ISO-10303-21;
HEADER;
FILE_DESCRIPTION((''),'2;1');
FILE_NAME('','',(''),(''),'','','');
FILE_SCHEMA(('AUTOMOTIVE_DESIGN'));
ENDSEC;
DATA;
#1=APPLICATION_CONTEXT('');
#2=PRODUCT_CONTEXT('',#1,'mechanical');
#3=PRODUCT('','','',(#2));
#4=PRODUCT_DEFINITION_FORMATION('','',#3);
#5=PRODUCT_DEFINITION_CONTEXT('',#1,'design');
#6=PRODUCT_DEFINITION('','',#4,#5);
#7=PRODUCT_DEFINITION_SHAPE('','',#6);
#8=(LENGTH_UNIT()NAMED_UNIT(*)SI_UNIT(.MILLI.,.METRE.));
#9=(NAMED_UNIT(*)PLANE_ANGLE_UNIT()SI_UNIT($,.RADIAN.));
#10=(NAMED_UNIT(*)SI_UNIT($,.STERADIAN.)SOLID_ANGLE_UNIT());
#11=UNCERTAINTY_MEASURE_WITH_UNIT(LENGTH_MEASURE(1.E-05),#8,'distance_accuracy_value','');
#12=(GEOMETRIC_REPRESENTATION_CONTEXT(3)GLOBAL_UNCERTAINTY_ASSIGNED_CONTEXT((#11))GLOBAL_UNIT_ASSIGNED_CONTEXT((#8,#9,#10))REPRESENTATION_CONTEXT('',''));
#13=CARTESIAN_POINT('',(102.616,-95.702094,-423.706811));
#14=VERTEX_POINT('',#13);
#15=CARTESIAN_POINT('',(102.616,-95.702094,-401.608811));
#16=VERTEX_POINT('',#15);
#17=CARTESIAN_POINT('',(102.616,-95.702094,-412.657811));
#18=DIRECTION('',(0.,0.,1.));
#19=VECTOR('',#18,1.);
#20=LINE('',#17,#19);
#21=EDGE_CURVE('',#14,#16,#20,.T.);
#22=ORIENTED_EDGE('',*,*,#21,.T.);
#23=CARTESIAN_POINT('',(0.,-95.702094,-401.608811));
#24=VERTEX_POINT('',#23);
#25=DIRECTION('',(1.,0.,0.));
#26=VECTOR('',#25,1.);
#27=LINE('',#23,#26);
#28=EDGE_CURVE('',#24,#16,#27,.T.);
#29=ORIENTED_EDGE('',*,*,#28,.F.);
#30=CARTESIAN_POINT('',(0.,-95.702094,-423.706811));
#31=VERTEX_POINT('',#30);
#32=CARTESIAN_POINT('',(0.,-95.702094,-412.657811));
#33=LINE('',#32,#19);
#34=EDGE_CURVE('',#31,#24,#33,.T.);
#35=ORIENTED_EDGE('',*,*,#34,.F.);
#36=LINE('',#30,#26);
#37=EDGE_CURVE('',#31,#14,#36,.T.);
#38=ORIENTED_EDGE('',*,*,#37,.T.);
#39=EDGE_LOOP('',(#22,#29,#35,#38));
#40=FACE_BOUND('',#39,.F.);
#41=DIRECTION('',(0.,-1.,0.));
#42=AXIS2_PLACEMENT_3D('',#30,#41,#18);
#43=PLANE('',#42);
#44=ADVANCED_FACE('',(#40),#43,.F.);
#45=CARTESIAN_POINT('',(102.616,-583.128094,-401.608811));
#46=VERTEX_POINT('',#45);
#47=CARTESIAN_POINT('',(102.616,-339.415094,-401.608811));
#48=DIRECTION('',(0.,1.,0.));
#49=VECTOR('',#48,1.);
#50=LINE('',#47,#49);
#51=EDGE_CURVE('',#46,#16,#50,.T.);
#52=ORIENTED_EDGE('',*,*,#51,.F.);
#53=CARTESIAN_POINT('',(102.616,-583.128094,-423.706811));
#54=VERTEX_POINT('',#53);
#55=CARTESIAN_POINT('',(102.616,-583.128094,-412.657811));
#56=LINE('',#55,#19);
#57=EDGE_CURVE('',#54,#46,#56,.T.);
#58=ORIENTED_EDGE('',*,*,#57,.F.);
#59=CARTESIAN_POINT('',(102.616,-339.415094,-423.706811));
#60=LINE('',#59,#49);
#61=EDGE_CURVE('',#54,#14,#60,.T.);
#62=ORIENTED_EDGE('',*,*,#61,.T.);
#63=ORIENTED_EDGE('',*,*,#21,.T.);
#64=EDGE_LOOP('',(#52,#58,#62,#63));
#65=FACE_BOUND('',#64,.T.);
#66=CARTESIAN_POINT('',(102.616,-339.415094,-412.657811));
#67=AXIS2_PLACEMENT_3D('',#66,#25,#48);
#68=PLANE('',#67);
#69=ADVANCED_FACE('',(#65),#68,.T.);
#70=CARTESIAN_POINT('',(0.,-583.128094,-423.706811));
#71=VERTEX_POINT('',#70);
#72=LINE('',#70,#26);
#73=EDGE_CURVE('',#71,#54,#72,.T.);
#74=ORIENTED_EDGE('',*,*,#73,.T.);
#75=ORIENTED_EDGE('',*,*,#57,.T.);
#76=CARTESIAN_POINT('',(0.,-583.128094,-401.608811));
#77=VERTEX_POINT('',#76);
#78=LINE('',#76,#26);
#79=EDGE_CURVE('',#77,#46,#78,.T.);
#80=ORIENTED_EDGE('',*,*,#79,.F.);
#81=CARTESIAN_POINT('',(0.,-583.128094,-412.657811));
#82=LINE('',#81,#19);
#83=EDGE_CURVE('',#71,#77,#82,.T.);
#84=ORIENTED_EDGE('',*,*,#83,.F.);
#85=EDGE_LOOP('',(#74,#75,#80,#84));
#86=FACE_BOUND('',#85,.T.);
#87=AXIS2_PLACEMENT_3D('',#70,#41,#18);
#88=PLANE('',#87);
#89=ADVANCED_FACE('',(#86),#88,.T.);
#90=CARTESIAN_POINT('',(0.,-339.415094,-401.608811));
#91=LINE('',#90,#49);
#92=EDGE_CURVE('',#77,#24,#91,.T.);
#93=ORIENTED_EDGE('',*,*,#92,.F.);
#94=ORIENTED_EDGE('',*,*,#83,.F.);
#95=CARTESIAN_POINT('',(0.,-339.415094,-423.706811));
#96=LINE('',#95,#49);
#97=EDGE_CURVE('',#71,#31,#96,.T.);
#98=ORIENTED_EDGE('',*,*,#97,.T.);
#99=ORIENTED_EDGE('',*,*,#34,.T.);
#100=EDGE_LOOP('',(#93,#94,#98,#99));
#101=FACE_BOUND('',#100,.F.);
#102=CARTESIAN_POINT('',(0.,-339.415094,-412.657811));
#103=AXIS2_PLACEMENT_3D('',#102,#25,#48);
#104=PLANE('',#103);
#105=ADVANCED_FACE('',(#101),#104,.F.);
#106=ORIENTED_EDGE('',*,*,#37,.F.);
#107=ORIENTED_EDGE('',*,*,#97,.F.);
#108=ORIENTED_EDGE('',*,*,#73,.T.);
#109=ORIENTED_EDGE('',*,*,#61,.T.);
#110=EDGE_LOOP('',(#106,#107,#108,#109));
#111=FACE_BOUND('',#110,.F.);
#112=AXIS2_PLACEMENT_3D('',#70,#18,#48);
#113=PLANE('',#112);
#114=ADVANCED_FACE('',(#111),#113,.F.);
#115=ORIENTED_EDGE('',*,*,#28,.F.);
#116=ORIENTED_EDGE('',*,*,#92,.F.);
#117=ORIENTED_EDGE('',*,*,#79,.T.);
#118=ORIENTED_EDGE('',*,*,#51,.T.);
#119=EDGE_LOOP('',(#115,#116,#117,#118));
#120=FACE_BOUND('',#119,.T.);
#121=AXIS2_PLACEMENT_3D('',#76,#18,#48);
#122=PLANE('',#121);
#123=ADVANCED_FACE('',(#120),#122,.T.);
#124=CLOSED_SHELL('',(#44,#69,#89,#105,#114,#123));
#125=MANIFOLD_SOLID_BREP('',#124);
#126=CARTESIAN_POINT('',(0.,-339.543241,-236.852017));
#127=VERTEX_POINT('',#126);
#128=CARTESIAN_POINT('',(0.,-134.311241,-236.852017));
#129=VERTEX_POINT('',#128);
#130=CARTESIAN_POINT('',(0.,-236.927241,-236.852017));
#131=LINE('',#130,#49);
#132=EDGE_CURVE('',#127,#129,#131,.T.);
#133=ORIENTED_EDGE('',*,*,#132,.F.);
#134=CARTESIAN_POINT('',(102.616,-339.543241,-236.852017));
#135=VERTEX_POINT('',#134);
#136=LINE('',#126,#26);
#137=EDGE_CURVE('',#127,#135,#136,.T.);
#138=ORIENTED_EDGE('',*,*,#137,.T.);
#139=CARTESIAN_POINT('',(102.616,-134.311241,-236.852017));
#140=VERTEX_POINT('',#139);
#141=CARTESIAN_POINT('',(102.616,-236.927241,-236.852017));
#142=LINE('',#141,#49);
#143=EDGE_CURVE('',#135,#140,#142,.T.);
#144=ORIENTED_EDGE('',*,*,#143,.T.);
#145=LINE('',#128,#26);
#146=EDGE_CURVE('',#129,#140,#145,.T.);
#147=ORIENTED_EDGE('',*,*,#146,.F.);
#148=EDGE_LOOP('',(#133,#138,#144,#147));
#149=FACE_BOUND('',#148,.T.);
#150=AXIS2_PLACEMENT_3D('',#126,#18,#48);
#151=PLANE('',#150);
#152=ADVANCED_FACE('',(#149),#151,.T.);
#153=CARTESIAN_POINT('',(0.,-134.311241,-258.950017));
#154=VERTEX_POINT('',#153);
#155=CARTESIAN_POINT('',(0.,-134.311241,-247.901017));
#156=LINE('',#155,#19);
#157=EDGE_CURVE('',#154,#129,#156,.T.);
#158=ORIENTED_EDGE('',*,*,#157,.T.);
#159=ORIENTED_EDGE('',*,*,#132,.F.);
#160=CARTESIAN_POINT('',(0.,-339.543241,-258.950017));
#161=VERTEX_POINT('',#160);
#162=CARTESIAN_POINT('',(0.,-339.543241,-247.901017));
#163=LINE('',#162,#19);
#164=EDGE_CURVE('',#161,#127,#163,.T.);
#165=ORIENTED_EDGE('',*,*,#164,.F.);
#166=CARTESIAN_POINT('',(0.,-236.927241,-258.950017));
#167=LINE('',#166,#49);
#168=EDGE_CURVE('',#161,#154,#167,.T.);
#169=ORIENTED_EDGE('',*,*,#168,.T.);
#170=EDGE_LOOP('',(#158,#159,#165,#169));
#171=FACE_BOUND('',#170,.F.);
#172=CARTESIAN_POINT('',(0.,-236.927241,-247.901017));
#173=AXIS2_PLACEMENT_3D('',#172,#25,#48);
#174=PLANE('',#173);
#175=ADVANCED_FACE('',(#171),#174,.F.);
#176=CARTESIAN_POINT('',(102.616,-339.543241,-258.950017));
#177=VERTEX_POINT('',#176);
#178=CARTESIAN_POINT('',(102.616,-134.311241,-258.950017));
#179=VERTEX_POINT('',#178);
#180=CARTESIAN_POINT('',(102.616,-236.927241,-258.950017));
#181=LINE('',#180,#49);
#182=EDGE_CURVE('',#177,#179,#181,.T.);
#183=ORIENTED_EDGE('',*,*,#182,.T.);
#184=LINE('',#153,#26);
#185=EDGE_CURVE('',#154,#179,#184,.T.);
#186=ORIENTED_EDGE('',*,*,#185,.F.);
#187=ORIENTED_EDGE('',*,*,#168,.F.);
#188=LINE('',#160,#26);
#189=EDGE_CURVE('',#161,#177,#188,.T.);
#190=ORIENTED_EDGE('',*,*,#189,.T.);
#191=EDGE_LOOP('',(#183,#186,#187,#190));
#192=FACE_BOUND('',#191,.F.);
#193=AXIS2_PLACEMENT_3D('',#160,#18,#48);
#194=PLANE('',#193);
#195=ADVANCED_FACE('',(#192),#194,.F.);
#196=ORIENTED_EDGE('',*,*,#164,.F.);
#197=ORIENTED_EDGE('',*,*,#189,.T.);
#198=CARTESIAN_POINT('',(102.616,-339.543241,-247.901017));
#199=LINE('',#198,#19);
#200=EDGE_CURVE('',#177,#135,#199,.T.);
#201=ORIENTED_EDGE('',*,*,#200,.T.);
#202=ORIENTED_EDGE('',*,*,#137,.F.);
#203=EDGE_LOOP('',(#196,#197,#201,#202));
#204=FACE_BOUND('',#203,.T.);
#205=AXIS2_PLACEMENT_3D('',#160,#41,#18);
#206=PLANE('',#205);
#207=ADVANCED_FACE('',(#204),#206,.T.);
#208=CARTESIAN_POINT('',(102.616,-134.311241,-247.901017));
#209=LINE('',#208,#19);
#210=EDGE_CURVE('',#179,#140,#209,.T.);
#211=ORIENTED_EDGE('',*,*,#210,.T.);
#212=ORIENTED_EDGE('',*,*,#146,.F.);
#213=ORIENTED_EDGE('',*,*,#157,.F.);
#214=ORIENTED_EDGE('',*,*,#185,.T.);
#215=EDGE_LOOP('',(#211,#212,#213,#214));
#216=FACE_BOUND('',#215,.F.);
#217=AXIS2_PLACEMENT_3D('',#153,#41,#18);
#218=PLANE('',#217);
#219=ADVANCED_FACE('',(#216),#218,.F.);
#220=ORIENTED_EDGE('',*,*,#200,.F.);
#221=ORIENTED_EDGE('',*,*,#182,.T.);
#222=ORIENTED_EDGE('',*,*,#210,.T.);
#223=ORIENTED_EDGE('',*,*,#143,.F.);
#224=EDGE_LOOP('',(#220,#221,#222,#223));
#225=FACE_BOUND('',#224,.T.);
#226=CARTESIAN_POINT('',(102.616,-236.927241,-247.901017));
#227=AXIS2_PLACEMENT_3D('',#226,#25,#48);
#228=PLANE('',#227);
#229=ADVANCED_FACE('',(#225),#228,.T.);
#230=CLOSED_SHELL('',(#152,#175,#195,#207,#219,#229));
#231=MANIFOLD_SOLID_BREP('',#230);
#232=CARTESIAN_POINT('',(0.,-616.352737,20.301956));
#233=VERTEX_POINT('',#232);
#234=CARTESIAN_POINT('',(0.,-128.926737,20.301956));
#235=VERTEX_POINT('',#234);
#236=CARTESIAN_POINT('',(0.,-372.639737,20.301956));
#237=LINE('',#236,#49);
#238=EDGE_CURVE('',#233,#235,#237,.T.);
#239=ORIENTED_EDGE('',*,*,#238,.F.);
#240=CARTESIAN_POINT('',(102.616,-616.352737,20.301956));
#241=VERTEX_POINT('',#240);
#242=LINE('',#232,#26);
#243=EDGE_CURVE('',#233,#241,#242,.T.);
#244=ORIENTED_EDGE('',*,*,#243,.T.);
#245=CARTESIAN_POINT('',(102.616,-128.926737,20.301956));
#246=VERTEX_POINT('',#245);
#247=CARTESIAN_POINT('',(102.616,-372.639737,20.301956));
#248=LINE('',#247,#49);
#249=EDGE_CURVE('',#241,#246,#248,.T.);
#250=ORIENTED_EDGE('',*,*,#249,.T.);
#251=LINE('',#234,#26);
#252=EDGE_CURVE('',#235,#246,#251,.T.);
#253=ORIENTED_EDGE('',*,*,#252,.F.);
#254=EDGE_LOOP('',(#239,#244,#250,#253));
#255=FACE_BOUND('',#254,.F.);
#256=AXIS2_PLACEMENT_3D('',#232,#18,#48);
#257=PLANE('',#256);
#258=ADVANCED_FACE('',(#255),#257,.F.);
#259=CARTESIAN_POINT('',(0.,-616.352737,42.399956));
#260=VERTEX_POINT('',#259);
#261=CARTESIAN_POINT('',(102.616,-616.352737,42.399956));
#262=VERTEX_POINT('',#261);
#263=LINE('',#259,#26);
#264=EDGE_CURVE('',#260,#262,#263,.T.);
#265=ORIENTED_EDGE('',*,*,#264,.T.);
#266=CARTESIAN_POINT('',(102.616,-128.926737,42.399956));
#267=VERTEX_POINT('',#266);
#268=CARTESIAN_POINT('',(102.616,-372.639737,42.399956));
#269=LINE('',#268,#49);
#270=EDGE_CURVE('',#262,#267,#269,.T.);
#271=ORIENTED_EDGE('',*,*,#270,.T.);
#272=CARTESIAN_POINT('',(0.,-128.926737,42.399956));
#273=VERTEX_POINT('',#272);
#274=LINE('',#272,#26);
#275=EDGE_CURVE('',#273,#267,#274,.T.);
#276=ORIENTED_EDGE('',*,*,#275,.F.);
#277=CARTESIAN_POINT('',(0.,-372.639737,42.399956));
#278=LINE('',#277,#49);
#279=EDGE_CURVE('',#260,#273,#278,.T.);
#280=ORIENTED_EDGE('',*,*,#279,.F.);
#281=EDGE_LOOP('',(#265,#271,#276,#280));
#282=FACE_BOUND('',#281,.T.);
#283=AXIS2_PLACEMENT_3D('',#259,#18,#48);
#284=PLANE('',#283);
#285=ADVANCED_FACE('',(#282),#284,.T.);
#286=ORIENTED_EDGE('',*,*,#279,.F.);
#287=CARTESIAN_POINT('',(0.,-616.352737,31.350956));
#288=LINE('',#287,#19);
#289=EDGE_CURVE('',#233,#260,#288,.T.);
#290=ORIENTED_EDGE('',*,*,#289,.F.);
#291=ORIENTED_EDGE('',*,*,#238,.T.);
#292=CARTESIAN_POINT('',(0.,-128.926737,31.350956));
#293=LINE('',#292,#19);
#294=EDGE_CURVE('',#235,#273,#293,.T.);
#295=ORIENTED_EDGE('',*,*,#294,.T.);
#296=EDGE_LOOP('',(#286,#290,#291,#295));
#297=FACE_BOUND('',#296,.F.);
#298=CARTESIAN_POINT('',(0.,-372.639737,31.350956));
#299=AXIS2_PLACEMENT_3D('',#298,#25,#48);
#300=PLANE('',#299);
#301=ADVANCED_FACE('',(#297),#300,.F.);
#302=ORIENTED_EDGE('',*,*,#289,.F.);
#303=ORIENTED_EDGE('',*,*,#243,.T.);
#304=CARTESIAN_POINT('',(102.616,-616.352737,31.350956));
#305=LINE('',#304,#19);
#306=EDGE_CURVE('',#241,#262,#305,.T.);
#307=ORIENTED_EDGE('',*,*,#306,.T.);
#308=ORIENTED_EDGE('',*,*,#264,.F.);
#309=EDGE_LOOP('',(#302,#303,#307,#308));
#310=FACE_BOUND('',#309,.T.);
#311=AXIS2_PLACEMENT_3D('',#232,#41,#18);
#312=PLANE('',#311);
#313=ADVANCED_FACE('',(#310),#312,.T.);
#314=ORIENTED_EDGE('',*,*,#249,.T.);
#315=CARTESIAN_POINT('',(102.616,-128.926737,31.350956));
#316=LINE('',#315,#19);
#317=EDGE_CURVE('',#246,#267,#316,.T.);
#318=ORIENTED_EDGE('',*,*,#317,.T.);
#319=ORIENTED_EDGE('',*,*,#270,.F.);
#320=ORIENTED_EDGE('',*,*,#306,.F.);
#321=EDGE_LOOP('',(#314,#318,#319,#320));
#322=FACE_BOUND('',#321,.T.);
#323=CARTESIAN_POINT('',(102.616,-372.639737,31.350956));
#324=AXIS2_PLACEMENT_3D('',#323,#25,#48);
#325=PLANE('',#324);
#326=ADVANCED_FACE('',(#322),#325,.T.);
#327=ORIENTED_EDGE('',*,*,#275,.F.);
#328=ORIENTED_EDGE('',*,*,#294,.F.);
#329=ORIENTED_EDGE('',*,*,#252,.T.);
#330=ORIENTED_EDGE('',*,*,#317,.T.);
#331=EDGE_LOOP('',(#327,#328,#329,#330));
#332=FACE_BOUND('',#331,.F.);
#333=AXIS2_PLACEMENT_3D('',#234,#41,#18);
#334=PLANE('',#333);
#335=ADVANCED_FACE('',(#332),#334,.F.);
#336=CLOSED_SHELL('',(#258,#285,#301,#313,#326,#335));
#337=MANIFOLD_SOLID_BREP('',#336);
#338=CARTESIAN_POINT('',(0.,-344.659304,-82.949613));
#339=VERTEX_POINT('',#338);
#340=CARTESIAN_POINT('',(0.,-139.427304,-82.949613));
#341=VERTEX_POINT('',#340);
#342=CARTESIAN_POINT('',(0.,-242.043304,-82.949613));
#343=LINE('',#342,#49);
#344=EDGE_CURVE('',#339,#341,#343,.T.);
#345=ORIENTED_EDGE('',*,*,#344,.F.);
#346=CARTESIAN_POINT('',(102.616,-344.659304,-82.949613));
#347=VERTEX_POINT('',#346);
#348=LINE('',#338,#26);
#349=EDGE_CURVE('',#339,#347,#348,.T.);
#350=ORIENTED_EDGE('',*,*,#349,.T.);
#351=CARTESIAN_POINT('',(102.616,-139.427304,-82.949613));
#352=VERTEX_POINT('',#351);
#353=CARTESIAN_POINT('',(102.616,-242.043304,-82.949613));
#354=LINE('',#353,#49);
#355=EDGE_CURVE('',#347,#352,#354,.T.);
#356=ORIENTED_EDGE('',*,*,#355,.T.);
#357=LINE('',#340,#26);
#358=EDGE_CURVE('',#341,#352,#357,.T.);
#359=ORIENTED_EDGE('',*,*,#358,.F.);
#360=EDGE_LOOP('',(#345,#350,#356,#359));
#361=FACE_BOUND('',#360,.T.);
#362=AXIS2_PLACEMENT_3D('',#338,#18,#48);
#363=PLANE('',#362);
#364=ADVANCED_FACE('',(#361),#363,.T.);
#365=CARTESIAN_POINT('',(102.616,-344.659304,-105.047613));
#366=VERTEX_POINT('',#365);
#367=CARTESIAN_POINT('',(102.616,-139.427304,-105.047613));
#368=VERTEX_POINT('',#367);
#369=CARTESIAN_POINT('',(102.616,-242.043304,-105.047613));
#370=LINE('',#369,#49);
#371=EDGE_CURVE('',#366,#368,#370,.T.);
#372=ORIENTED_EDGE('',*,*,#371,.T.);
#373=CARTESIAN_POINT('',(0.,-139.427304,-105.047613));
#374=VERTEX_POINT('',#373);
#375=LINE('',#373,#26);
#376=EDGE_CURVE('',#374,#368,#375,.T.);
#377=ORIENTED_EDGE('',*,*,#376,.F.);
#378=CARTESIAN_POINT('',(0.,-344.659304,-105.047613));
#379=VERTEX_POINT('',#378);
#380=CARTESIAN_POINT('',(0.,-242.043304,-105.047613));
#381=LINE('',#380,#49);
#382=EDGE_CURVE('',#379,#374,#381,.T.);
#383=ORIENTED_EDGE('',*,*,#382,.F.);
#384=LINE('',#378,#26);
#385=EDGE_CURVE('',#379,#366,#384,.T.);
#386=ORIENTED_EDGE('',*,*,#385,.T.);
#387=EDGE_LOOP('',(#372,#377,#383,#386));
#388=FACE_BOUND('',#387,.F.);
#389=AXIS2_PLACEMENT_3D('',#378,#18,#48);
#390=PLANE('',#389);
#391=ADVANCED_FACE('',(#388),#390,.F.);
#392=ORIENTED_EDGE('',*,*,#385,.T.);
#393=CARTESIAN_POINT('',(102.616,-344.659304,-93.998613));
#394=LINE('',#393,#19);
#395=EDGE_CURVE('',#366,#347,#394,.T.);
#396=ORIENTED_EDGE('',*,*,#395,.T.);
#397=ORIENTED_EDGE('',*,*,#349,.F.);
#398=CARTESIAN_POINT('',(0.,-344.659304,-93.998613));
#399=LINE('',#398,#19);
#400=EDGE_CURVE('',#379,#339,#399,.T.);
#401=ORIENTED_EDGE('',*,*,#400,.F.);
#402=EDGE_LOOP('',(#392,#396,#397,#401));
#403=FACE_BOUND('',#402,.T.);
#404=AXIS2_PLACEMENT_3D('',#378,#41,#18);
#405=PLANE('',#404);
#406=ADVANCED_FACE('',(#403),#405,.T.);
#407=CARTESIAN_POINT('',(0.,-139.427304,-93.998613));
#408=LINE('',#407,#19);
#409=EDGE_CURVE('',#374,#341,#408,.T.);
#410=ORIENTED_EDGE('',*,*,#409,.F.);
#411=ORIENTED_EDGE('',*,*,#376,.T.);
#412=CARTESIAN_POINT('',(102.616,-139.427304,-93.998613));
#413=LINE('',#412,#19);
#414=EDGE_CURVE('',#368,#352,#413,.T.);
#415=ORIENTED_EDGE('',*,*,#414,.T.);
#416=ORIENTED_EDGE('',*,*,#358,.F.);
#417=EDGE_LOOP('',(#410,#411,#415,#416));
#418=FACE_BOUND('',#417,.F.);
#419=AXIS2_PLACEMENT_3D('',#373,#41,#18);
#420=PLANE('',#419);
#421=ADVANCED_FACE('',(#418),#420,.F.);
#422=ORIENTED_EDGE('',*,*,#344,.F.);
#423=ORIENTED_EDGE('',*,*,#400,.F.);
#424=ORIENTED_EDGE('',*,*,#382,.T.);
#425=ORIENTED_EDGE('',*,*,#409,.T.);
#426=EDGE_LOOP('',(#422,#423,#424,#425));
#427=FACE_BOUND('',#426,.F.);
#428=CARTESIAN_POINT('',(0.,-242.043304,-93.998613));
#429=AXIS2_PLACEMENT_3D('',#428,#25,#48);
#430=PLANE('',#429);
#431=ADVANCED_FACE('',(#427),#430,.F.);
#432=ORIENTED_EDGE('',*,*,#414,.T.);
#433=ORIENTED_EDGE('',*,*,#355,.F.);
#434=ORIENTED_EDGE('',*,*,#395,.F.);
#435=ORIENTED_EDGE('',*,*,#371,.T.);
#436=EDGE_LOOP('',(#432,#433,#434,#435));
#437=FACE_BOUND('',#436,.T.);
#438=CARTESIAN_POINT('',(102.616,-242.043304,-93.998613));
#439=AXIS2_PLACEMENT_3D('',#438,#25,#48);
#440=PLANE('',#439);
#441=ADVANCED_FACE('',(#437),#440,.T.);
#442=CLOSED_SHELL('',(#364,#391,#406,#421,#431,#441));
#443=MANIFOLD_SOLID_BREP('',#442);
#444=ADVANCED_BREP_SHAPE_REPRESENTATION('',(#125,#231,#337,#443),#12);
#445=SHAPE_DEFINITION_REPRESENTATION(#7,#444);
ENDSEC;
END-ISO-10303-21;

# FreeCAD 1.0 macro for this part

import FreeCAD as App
import Part
import Sketcher
Q = App.Units.Quantity

doc = App.newDocument("Part")
params = doc.addObject("Spreadsheet::Sheet", "Params")
for row, (alias, value) in enumerate([
    ("sketch1_width", "19.19 in"),
    ("sketch1_width2", "8.08 in"),
    ("sketch1_height", "0.87 in"),
    ("pad1_length", "4.04 in"),
], start=1):
    params.set(f"A{row}", alias)
    params.set(f"B{row}", "=" + value)
    params.setAlias(f"B{row}", alias)

body = doc.addObject("PartDesign::Body", "Body")
body.AllowCompound = True

# Sketch on YZ plane
sketch1 = body.newObject("Sketcher::SketchObject", "Sketch")
sketch1.AttachmentSupport = (doc.getObject("YZ_Plane"), [""])
sketch1.MapMode = "FlatFace"
sketch1.addGeometry([
    Part.LineSegment(App.Vector(-616, 42, 0), App.Vector(-616, 20, 0)),  # 0
    Part.LineSegment(App.Vector(-616, 20, 0), App.Vector(-129, 20, 0)),  # 1
    Part.LineSegment(App.Vector(-129, 20, 0), App.Vector(-129, 42, 0)),  # 2
    Part.LineSegment(App.Vector(-129, 42, 0), App.Vector(-616, 42, 0)),  # 3
    Part.LineSegment(App.Vector(-345, -83, 0), App.Vector(-345, -105, 0)),  # 4
    Part.LineSegment(App.Vector(-345, -105, 0), App.Vector(-139, -105, 0)),  # 5
    Part.LineSegment(App.Vector(-139, -105, 0), App.Vector(-139, -83, 0)),  # 6
    Part.LineSegment(App.Vector(-139, -83, 0), App.Vector(-345, -83, 0)),  # 7
    Part.LineSegment(App.Vector(-340, -237, 0), App.Vector(-340, -259, 0)),  # 8
    Part.LineSegment(App.Vector(-340, -259, 0), App.Vector(-134, -259, 0)),  # 9
    Part.LineSegment(App.Vector(-134, -259, 0), App.Vector(-134, -237, 0)),  # 10
    Part.LineSegment(App.Vector(-134, -237, 0), App.Vector(-340, -237, 0)),  # 11
    Part.LineSegment(App.Vector(-583, -402, 0), App.Vector(-583, -424, 0)),  # 12
    Part.LineSegment(App.Vector(-583, -424, 0), App.Vector(-96, -424, 0)),  # 13
    Part.LineSegment(App.Vector(-96, -424, 0), App.Vector(-96, -402, 0)),  # 14
    Part.LineSegment(App.Vector(-96, -402, 0), App.Vector(-583, -402, 0)),  # 15
], False)
sketch1.addConstraint([
    Sketcher.Constraint("Coincident", 0, 2, 1, 1),
    Sketcher.Constraint("Coincident", 1, 2, 2, 1),
    Sketcher.Constraint("Coincident", 2, 2, 3, 1),
    Sketcher.Constraint("Coincident", 3, 2, 0, 1),
    Sketcher.Constraint("Coincident", 4, 2, 5, 1),
    Sketcher.Constraint("Coincident", 5, 2, 6, 1),
    Sketcher.Constraint("Coincident", 6, 2, 7, 1),
    Sketcher.Constraint("Coincident", 7, 2, 4, 1),
    Sketcher.Constraint("Coincident", 8, 2, 9, 1),
    Sketcher.Constraint("Coincident", 9, 2, 10, 1),
    Sketcher.Constraint("Coincident", 10, 2, 11, 1),
    Sketcher.Constraint("Coincident", 11, 2, 8, 1),
    Sketcher.Constraint("Coincident", 12, 2, 13, 1),
    Sketcher.Constraint("Coincident", 13, 2, 14, 1),
    Sketcher.Constraint("Coincident", 14, 2, 15, 1),
    Sketcher.Constraint("Coincident", 15, 2, 12, 1),
    Sketcher.Constraint("Vertical", 0),
    Sketcher.Constraint("Horizontal", 1),
    Sketcher.Constraint("Vertical", 2),
    Sketcher.Constraint("Horizontal", 3),
    Sketcher.Constraint("Vertical", 4),
    Sketcher.Constraint("Horizontal", 5),
    Sketcher.Constraint("Vertical", 6),
    Sketcher.Constraint("Horizontal", 7),
    Sketcher.Constraint("Vertical", 8),
    Sketcher.Constraint("Horizontal", 9),
    Sketcher.Constraint("Vertical", 10),
    Sketcher.Constraint("Horizontal", 11),
    Sketcher.Constraint("Vertical", 12),
    Sketcher.Constraint("Horizontal", 13),
    Sketcher.Constraint("Vertical", 14),
    Sketcher.Constraint("Horizontal", 15),
    Sketcher.Constraint("Equal", 7, 9),
    Sketcher.Constraint("Equal", 3, 13),
    Sketcher.Constraint("Equal", 2, 4),
    Sketcher.Constraint("Equal", 6, 8),
    Sketcher.Constraint("Equal", 10, 12),
    Sketcher.Constraint("DistanceX", 1, 1, 1, 2, Q("19.19 in")),
    Sketcher.Constraint("DistanceX", 5, 1, 5, 2, Q("8.08 in")),
    Sketcher.Constraint("DistanceY", 0, 2, 0, 1, Q("0.87 in")),
    Sketcher.Constraint("DistanceY", 12, 2, 4, 2, Q("318.659198 mm")),
    Sketcher.Constraint("DistanceX", 8, 2, -1, 1, Q("339.543241 mm")),
    Sketcher.Constraint("DistanceY", 12, 2, -1, 1, Q("423.706811 mm")),
    Sketcher.Constraint("DistanceY", 4, 2, 1, 2, Q("125.349569 mm")),
    Sketcher.Constraint("DistanceX", 12, 2, 4, 2, Q("238.46879 mm")),
    Sketcher.Constraint("DistanceX", 0, 2, -1, 1, Q("616.352737 mm")),
    Sketcher.Constraint("DistanceX", 4, 2, -1, 1, Q("344.659304 mm")),
    Sketcher.Constraint("DistanceY", 8, 2, -1, 1, Q("258.950017 mm")),
])
sketch1.setExpression("Constraints[37]", "Params.sketch1_width")
sketch1.setExpression("Constraints[38]", "Params.sketch1_width2")
sketch1.setExpression("Constraints[39]", "Params.sketch1_height")
pad1 = body.newObject("PartDesign::Pad", "Pad")
pad1.Profile = sketch1
pad1.setExpression("Length", "Params.pad1_length")

doc.recompute()
